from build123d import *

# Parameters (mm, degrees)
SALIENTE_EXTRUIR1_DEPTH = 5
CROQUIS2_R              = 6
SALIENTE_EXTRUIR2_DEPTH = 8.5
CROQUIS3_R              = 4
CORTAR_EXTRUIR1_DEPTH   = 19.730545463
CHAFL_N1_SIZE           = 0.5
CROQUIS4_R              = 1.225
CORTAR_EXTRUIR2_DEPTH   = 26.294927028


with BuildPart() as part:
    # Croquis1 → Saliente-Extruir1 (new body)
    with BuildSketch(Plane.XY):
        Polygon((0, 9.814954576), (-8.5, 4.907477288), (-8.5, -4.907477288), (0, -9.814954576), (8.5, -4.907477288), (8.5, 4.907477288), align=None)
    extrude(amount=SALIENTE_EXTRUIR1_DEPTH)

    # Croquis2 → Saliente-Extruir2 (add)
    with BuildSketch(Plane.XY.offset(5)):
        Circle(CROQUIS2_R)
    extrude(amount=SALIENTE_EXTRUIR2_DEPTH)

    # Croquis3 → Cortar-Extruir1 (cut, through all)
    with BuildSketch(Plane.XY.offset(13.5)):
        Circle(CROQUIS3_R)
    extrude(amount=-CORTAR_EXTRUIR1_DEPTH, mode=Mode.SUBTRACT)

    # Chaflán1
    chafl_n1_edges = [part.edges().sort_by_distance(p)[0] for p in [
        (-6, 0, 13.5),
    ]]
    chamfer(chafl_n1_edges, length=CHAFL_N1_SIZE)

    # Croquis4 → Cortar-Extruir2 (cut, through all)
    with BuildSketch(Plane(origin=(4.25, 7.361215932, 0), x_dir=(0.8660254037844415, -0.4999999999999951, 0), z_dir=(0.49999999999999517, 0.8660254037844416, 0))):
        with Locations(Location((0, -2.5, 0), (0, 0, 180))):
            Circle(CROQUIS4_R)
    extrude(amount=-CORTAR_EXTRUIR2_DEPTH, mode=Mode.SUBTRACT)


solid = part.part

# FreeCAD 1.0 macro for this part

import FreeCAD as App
import Part
import Sketcher
Q = App.Units.Quantity


def edges_at(feature, points):
    """Names of the edges that pass closest to the given points."""
    edges = feature.Shape.Edges
    near = lambda p: min(range(len(edges)), key=lambda i: edges[i].distToShape(Part.Vertex(*p))[0])
    return sorted({f"Edge{near(p) + 1}" for p in points})

doc = App.newDocument("Part")
body = doc.addObject("PartDesign::Body", "Body")

# Sketch on XY plane
sketch1 = doc.addObject("Sketcher::SketchObject", "Sketch")
body.addObject(sketch1)
sketch1.AttachmentSupport = (doc.XY_Plane, [""])
sketch1.MapMode = "FlatFace"
sketch1.addGeometry([
    Part.LineSegment(App.Vector(0, 9.814955, 0), App.Vector(-8.5, 4.907477, 0)),  # 0
    Part.LineSegment(App.Vector(-8.5, 4.907477, 0), App.Vector(-8.5, -4.907477, 0)),  # 1
    Part.LineSegment(App.Vector(-8.5, -4.907477, 0), App.Vector(0, -9.814955, 0)),  # 2
    Part.LineSegment(App.Vector(0, -9.814955, 0), App.Vector(8.5, -4.907477, 0)),  # 3
    Part.LineSegment(App.Vector(8.5, -4.907477, 0), App.Vector(8.5, 4.907477, 0)),  # 4
    Part.LineSegment(App.Vector(8.5, 4.907477, 0), App.Vector(0, 9.814955, 0)),  # 5
], False)
sketch1.addConstraint([
    Sketcher.Constraint("Coincident", 0, 2, 1, 1),
    Sketcher.Constraint("Coincident", 1, 2, 2, 1),
    Sketcher.Constraint("Coincident", 2, 2, 3, 1),
    Sketcher.Constraint("Coincident", 3, 2, 4, 1),
    Sketcher.Constraint("Coincident", 4, 2, 5, 1),
    Sketcher.Constraint("Coincident", 5, 2, 0, 1),
    Sketcher.Constraint("Vertical", 1),
    Sketcher.Constraint("Vertical", 4),
    Sketcher.Constraint("Symmetric", 0, 2, 3, 2, -1, 1),
    Sketcher.Constraint("Symmetric", 2, 2, 5, 2, -1, 1),
    Sketcher.Constraint("PointOnObject", 2, 2, -2),
    Sketcher.Constraint("Parallel", 2, 5),
    Sketcher.Constraint("Horizontal", 1, 2, 3, 2),
    Sketcher.Constraint("Angle", 0, Q("-150 deg")),
    Sketcher.Constraint("DistanceX", 1, 2, 3, 2, Q("17 mm")),
    Sketcher.Constraint("DistanceY", 1, 2, 1, 1, Q("9.814955 mm")),
])
pad1 = doc.addObject("PartDesign::Pad", "Pad")
body.addObject(pad1)
pad1.Profile = sketch1
pad1.Length = 5

# Sketch on XY plane
sketch2 = doc.addObject("Sketcher::SketchObject", "Sketch001")
body.addObject(sketch2)
sketch2.AttachmentSupport = (doc.XY_Plane, [""])
sketch2.MapMode = "FlatFace"
sketch2.AttachmentOffset = App.Placement(App.Vector(0, 0, 5), App.Rotation())
sketch2.addGeometry(Part.Circle(App.Vector(0, 0, 0), App.Vector(0, 0, 1), 6), False)
sketch2.addConstraint([
    Sketcher.Constraint("Coincident", 0, 3, -1, 1),
    Sketcher.Constraint("Diameter", 0, Q("12 mm")),
])
pad2 = doc.addObject("PartDesign::Pad", "Pad001")
body.addObject(pad2)
pad2.Profile = sketch2
pad2.Length = 8.5

# Sketch on XY plane
sketch3 = doc.addObject("Sketcher::SketchObject", "Sketch002")
body.addObject(sketch3)
sketch3.AttachmentSupport = (doc.XY_Plane, [""])
sketch3.MapMode = "FlatFace"
sketch3.AttachmentOffset = App.Placement(App.Vector(0, 0, 13.5), App.Rotation())
sketch3.addGeometry(Part.Circle(App.Vector(0, 0, 0), App.Vector(0, 0, 1), 4), False)
sketch3.addConstraint([
    Sketcher.Constraint("Coincident", 0, 3, -1, 1),
    Sketcher.Constraint("Diameter", 0, Q("8 mm")),
])
pocket1 = doc.addObject("PartDesign::Pocket", "Pocket")
body.addObject(pocket1)
pocket1.Profile = sketch3
pocket1.Type = "ThroughAll"
doc.recompute()

chamfer = doc.addObject("PartDesign::Chamfer", "Chamfer")
body.addObject(chamfer)
chamfer.Base = (pocket1, edges_at(pocket1, [(-6, 0, 13.5)]))
chamfer.Size = 0.5

# Sketch on an angled plane
sketch4 = doc.addObject("Sketcher::SketchObject", "Sketch003")
body.addObject(sketch4)
sketch4.Placement = App.Placement(App.Vector(4.25, 7.361216, 0), App.Rotation(App.Vector(0.866025404, -0.5, 0), App.Vector(0, 0, -1), App.Vector(0.5, 0.866025404, 0), "ZXY"))
sketch4.addGeometry(Part.Circle(App.Vector(0, -2.5, 0), App.Vector(0, 0, 1), 1.225), False)
sketch4.addConstraint([
    Sketcher.Constraint("PointOnObject", 0, 3, -2),
    Sketcher.Constraint("Diameter", 0, Q("2.45 mm")),
    Sketcher.Constraint("DistanceY", 0, 3, -1, 1, Q("2.5 mm")),
])
pocket2 = doc.addObject("PartDesign::Pocket", "Pocket001")
body.addObject(pocket2)
pocket2.Profile = sketch4
pocket2.Type = "ThroughAll"

doc.recompute()
